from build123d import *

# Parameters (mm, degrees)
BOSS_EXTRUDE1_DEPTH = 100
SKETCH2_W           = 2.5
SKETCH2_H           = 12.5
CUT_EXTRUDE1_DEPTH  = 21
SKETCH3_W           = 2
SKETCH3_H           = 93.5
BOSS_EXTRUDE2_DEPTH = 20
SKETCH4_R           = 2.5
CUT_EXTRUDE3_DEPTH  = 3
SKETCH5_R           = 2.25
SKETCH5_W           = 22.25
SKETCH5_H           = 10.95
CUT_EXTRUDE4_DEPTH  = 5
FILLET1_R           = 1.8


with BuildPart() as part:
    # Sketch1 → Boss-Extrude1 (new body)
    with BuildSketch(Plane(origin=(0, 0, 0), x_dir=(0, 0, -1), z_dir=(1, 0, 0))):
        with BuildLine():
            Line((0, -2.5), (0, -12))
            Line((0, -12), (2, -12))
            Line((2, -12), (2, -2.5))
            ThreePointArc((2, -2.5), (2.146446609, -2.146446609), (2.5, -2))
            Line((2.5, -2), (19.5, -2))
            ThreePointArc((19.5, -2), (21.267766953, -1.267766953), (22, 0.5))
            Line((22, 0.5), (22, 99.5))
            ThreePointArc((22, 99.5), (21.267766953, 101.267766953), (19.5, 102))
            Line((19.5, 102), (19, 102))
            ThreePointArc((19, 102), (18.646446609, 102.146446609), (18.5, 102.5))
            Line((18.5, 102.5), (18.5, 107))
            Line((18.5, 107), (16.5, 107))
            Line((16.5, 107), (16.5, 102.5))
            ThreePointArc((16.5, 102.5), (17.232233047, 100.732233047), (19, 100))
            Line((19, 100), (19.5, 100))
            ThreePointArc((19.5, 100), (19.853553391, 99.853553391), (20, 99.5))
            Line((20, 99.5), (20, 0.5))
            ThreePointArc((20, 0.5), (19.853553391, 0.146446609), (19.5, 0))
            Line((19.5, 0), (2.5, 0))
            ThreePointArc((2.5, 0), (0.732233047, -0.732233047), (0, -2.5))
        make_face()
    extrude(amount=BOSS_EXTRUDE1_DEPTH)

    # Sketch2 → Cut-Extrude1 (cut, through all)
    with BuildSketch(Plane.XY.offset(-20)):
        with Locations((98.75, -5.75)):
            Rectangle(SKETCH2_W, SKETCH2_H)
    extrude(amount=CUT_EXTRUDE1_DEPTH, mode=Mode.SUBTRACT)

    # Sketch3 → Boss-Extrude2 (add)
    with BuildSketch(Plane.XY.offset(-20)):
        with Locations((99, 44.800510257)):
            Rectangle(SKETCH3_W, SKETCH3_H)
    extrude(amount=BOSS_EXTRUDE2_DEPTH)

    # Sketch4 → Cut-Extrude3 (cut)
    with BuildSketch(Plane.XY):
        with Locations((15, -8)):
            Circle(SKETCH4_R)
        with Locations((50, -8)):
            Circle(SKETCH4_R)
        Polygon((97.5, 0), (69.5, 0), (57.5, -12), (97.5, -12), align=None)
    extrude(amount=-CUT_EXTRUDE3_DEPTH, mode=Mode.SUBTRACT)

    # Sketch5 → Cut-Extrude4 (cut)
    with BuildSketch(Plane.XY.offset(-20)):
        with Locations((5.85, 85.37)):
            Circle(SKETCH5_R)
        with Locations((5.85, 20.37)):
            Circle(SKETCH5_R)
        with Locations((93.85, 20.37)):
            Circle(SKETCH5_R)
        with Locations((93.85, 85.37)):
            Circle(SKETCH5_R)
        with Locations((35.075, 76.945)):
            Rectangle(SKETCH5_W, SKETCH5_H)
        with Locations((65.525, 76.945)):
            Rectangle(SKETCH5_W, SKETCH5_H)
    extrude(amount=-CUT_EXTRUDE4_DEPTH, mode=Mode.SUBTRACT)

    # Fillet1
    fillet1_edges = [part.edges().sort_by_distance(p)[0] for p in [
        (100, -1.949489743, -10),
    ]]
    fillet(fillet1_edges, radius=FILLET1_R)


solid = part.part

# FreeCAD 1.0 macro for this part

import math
import FreeCAD as App
import Part
import Sketcher

V = App.Vector
Q = App.Units.Quantity


def edges_at(feature, points):
    """Names of the edges that pass closest to the given points."""
    edges = feature.Shape.Edges
    near = lambda p: min(range(len(edges)), key=lambda i: edges[i].distToShape(Part.Vertex(*p))[0])
    return sorted({f"Edge{near(p) + 1}" for p in points})


def add_polygon(sketch, points):
    """Adds a closed chain of lines whose ends are joined by coincident constraints."""
    first, n = sketch.GeometryCount, len(points)
    for a, b in zip(points, points[1:] + points[:1]):
        sketch.addGeometry(Part.LineSegment(App.Vector(*a, 0), App.Vector(*b, 0)), False)
    for i in range(n):
        sketch.addConstraint(Sketcher.Constraint("Coincident", first + i, 2, first + (i + 1) % n, 1))

doc = App.newDocument("Part")
params = doc.addObject("Spreadsheet::Sheet", "Params")
for row, (alias, value) in enumerate([
    ("sketch1_radius", "0.5 mm"),
    ("sketch1_radius2", "2.5 mm"),
    ("sketch1_width", "99 mm"),
    ("sketch1_height", "17 mm"),
    ("sketch1_width2", "9.5 mm"),
    ("pad1_length", "100 mm"),
    ("sketch2_width", "2.5 mm"),
    ("sketch2_height", "12.5 mm"),
    ("sketch3_width", "2 mm"),
    ("sketch3_height", "93.5 mm"),
    ("pad2_length", "20 mm"),
    ("sketch4_diameter", "5 mm"),
    ("sketch4_width", "28 mm"),
    ("sketch4_width2", "40 mm"),
    ("sketch4_height", "12 mm"),
    ("pocket2_length", "3 mm"),
    ("sketch5_diameter", "4.5 mm"),
    ("sketch5_width", "22.25 mm"),
    ("sketch5_height", "10.95 mm"),
    ("pocket3_length", "5 mm"),
    ("fillet_radius", "1.8 mm"),
], start=1):
    params.set(f"A{row}", alias)
    params.set(f"B{row}", "=" + value)
    params.setAlias(f"B{row}", alias)

body = doc.addObject("PartDesign::Body", "Body")

# Sketch on YZ plane
sketch1 = body.newObject("Sketcher::SketchObject", "Sketch")
sketch1.AttachmentSupport = (doc.getObject("YZ_Plane"), [""])
sketch1.MapMode = "FlatFace"
sketch1.addGeometry([
    Part.LineSegment(V(-2.5, 0, 0), V(-12, 0, 0)),  # 0
    Part.LineSegment(V(-12, 0, 0), V(-12, -2, 0)),  # 1
    Part.LineSegment(V(-12, -2, 0), V(-2.5, -2, 0)),  # 2
    Part.ArcOfCircle(Part.Circle(V(-2.5, -2.5, 0), V(0, 0, 1), 0.5), math.radians(0), math.radians(90)),  # 3
    Part.LineSegment(V(-2, -2.5, 0), V(-2, -19.5, 0)),  # 4
    Part.ArcOfCircle(Part.Circle(V(0.5, -19.5, 0), V(0, 0, 1), 2.5), math.radians(180), math.radians(270)),  # 5
    Part.LineSegment(V(0.5, -22, 0), V(99.5, -22, 0)),  # 6
    Part.ArcOfCircle(Part.Circle(V(99.5, -19.5, 0), V(0, 0, 1), 2.5), math.radians(-90), math.radians(0)),  # 7
    Part.LineSegment(V(102, -19.5, 0), V(102, -19, 0)),  # 8
    Part.ArcOfCircle(Part.Circle(V(102.5, -19, 0), V(0, 0, 1), 0.5), math.radians(90), math.radians(180)),  # 9
    Part.LineSegment(V(102.5, -18.5, 0), V(107, -18.5, 0)),  # 10
    Part.LineSegment(V(107, -18.5, 0), V(107, -16.5, 0)),  # 11
    Part.LineSegment(V(107, -16.5, 0), V(102.5, -16.5, 0)),  # 12
    Part.ArcOfCircle(Part.Circle(V(102.5, -19, 0), V(0, 0, 1), 2.5), math.radians(90), math.radians(180)),  # 13
    Part.LineSegment(V(100, -19, 0), V(100, -19.5, 0)),  # 14
    Part.ArcOfCircle(Part.Circle(V(99.5, -19.5, 0), V(0, 0, 1), 0.5), math.radians(-90), math.radians(0)),  # 15
    Part.LineSegment(V(99.5, -20, 0), V(0.5, -20, 0)),  # 16
    Part.ArcOfCircle(Part.Circle(V(0.5, -19.5, 0), V(0, 0, 1), 0.5), math.radians(180), math.radians(270)),  # 17
    Part.LineSegment(V(0, -19.5, 0), V(0, -2.5, 0)),  # 18
    Part.ArcOfCircle(Part.Circle(V(-2.5, -2.5, 0), V(0, 0, 1), 2.5), math.radians(0), math.radians(90)),  # 19
], False)
sketch1.addConstraint([
    Sketcher.Constraint("Coincident", 0, 2, 1, 1),
    Sketcher.Constraint("Coincident", 1, 2, 2, 1),
    Sketcher.Constraint("Tangent", 2, 2, 3, 2),
    Sketcher.Constraint("Tangent", 3, 1, 4, 1),
    Sketcher.Constraint("Tangent", 4, 2, 5, 1),
    Sketcher.Constraint("Tangent", 5, 2, 6, 1),
    Sketcher.Constraint("Tangent", 6, 2, 7, 1),
    Sketcher.Constraint("Tangent", 7, 2, 8, 1),
    Sketcher.Constraint("Tangent", 8, 2, 9, 2),
    Sketcher.Constraint("Tangent", 9, 1, 10, 1),
    Sketcher.Constraint("Coincident", 10, 2, 11, 1),
    Sketcher.Constraint("Coincident", 11, 2, 12, 1),
    Sketcher.Constraint("Tangent", 12, 2, 13, 1),
    Sketcher.Constraint("Tangent", 13, 2, 14, 1),
    Sketcher.Constraint("Tangent", 14, 2, 15, 2),
    Sketcher.Constraint("Tangent", 15, 1, 16, 1),
    Sketcher.Constraint("Tangent", 16, 2, 17, 2),
    Sketcher.Constraint("Tangent", 17, 1, 18, 1),
    Sketcher.Constraint("Tangent", 18, 2, 19, 1),
    Sketcher.Constraint("Tangent", 19, 2, 0, 1),
    Sketcher.Constraint("Horizontal", 0),
    Sketcher.Constraint("Vertical", 1),
    Sketcher.Constraint("Horizontal", 2),
    Sketcher.Constraint("Vertical", 4),
    Sketcher.Constraint("Horizontal", 6),
    Sketcher.Constraint("Vertical", 8),
    Sketcher.Constraint("Horizontal", 10),
    Sketcher.Constraint("Vertical", 11),
    Sketcher.Constraint("Horizontal", 12),
    Sketcher.Constraint("Vertical", 14),
    Sketcher.Constraint("Horizontal", 16),
    Sketcher.Constraint("Vertical", 18),
    Sketcher.Constraint("Coincident", 13, 3, 9, 3),
    Sketcher.Constraint("Coincident", 15, 3, 7, 3),
    Sketcher.Constraint("Coincident", 17, 3, 5, 3),
    Sketcher.Constraint("Coincident", 19, 3, 3, 3),
    Sketcher.Constraint("Equal", 5, 7),
    Sketcher.Constraint("Equal", 3, 9),
    Sketcher.Constraint("Equal", 7, 13),
    Sketcher.Constraint("PointOnObject", 0, 2, -1),
    Sketcher.Constraint("PointOnObject", 17, 1, -2),
    Sketcher.Constraint("Radius", 3, Q("0.5 mm")),
    Sketcher.Constraint("Radius", 5, Q("2.5 mm")),
    Sketcher.Constraint("DistanceX", 6, 1, 6, 2, Q("99 mm")),
    Sketcher.Constraint("DistanceY", 4, 2, 4, 1, Q("17 mm")),
    Sketcher.Constraint("DistanceX", 0, 2, 0, 1, Q("9.5 mm")),
    Sketcher.Constraint("DistanceX", 10, 1, 10, 2, Q("4.5 mm")),
    Sketcher.Constraint("DistanceY", 8, 1, 8, 2, Q("0.5 mm")),
])
sketch1.setExpression("Constraints[41]", "Params.sketch1_radius")
sketch1.setExpression("Constraints[42]", "Params.sketch1_radius2")
sketch1.setExpression("Constraints[43]", "Params.sketch1_width")
sketch1.setExpression("Constraints[44]", "Params.sketch1_height")
sketch1.setExpression("Constraints[45]", "Params.sketch1_width2")
pad1 = body.newObject("PartDesign::Pad", "Pad")
pad1.Profile = sketch1
pad1.setExpression("Length", "Params.pad1_length")

# Sketch on XY plane
sketch2 = body.newObject("Sketcher::SketchObject", "Sketch001")
sketch2.AttachmentSupport = (doc.getObject("XY_Plane"), [""])
sketch2.MapMode = "FlatFace"
sketch2.AttachmentOffset = App.Placement(V(0, 0, -20), App.Rotation())
add_polygon(sketch2, [(97.5, 0.5), (97.5, -12), (100, -12), (100, 0.5)])  # lines 0-3
sketch2.addConstraint([
    Sketcher.Constraint("Vertical", 0),
    Sketcher.Constraint("Horizontal", 1),
    Sketcher.Constraint("Vertical", 2),
    Sketcher.Constraint("Horizontal", 3),
    Sketcher.Constraint("DistanceX", 1, 1, 1, 2, Q("2.5 mm")),
    Sketcher.Constraint("DistanceY", 0, 2, 0, 1, Q("12.5 mm")),
    Sketcher.Constraint("DistanceY", 0, 2, -1, 1, Q("12 mm")),
    Sketcher.Constraint("DistanceX", -1, 1, 1, 2, Q("100 mm")),
])
sketch2.setExpression("Constraints[8]", "Params.sketch2_width")
sketch2.setExpression("Constraints[9]", "Params.sketch2_height")
pocket1 = body.newObject("PartDesign::Pocket", "Pocket")
pocket1.Profile = sketch2
pocket1.Type = "ThroughAll"
pocket1.Reversed = True

# Sketch on XY plane
sketch3 = body.newObject("Sketcher::SketchObject", "Sketch002")
sketch3.AttachmentSupport = (doc.getObject("XY_Plane"), [""])
sketch3.MapMode = "FlatFace"
sketch3.AttachmentOffset = App.Placement(V(0, 0, -20), App.Rotation())
add_polygon(sketch3, [(98, 91.6), (98, -1.9), (100, -1.9), (100, 91.6)])  # lines 0-3
sketch3.addConstraint([
    Sketcher.Constraint("Vertical", 0),
    Sketcher.Constraint("Horizontal", 1),
    Sketcher.Constraint("Vertical", 2),
    Sketcher.Constraint("Horizontal", 3),
    Sketcher.Constraint("DistanceX", 1, 1, 1, 2, Q("2 mm")),
    Sketcher.Constraint("DistanceY", 0, 2, 0, 1, Q("93.5 mm")),
    Sketcher.Constraint("DistanceX", -1, 1, 0, 2, Q("98 mm")),
    Sketcher.Constraint("DistanceY", 0, 2, -1, 1, Q("1.94949 mm")),
])
sketch3.setExpression("Constraints[8]", "Params.sketch3_width")
sketch3.setExpression("Constraints[9]", "Params.sketch3_height")
pad2 = body.newObject("PartDesign::Pad", "Pad001")
pad2.Profile = sketch3
pad2.setExpression("Length", "Params.pad2_length")

# Sketch on XY plane
sketch4 = body.newObject("Sketcher::SketchObject", "Sketch003")
sketch4.AttachmentSupport = (doc.getObject("XY_Plane"), [""])
sketch4.MapMode = "FlatFace"
sketch4.addGeometry(Part.Circle(V(15, -8, 0), V(0, 0, 1), 2.5), False)  # 0
sketch4.addGeometry(Part.Circle(V(50, -8, 0), V(0, 0, 1), 2.5), False)  # 1
add_polygon(sketch4, [(97.5, 0), (69.5, 0), (57.5, -12), (97.5, -12)])  # lines 2-5
sketch4.addConstraint([
    Sketcher.Constraint("Horizontal", 2),
    Sketcher.Constraint("Horizontal", 4),
    Sketcher.Constraint("Vertical", 5),
    Sketcher.Constraint("Equal", 0, 1),
    Sketcher.Constraint("PointOnObject", 2, 2, -1),
    Sketcher.Constraint("Horizontal", 0, 3, 1, 3),
    Sketcher.Constraint("Diameter", 0, Q("5 mm")),
    Sketcher.Constraint("DistanceX", 2, 2, 2, 1, Q("28 mm")),
    Sketcher.Constraint("DistanceX", 4, 1, 4, 2, Q("40 mm")),
    Sketcher.Constraint("DistanceY", 5, 1, 5, 2, Q("12 mm")),
    Sketcher.Constraint("DistanceX", -1, 1, 0, 3, Q("15 mm")),
    Sketcher.Constraint("DistanceY", 0, 3, -1, 1, Q("8 mm")),
    Sketcher.Constraint("DistanceX", -1, 1, 1, 3, Q("50 mm")),
    Sketcher.Constraint("DistanceX", -1, 1, 2, 2, Q("69.5 mm")),
])
sketch4.setExpression("Constraints[10]", "Params.sketch4_diameter")
sketch4.setExpression("Constraints[11]", "Params.sketch4_width")
sketch4.setExpression("Constraints[12]", "Params.sketch4_width2")
sketch4.setExpression("Constraints[13]", "Params.sketch4_height")
pocket2 = body.newObject("PartDesign::Pocket", "Pocket001")
pocket2.Profile = sketch4
pocket2.setExpression("Length", "Params.pocket2_length")

# Sketch on XY plane
sketch5 = body.newObject("Sketcher::SketchObject", "Sketch004")
sketch5.AttachmentSupport = (doc.getObject("XY_Plane"), [""])
sketch5.MapMode = "FlatFace"
sketch5.AttachmentOffset = App.Placement(V(0, 0, -20), App.Rotation())
sketch5.addGeometry(Part.Circle(V(5.8, 85.4, 0), V(0, 0, 1), 2.2), False)  # 0
sketch5.addGeometry(Part.Circle(V(5.8, 20.4, 0), V(0, 0, 1), 2.2), False)  # 1
sketch5.addGeometry(Part.Circle(V(93.8, 20.4, 0), V(0, 0, 1), 2.2), False)  # 2
sketch5.addGeometry(Part.Circle(V(93.8, 85.4, 0), V(0, 0, 1), 2.2), False)  # 3
add_polygon(sketch5, [(23.9, 82.4), (23.9, 71.5), (46.2, 71.5), (46.2, 82.4)])  # lines 4-7
add_polygon(sketch5, [(54.4, 82.4), (54.4, 71.5), (76.7, 71.5), (76.7, 82.4)])  # lines 8-11
sketch5.addConstraint([
    Sketcher.Constraint("Vertical", 4),
    Sketcher.Constraint("Horizontal", 5),
    Sketcher.Constraint("Vertical", 6),
    Sketcher.Constraint("Horizontal", 7),
    Sketcher.Constraint("Vertical", 8),
    Sketcher.Constraint("Horizontal", 9),
    Sketcher.Constraint("Vertical", 10),
    Sketcher.Constraint("Horizontal", 11),
    Sketcher.Constraint("Equal", 0, 1),
    Sketcher.Constraint("Equal", 1, 2),
    Sketcher.Constraint("Equal", 2, 3),
    Sketcher.Constraint("Horizontal", 1, 3, 2, 3),
    Sketcher.Constraint("Horizontal", 0, 3, 3, 3),
    Sketcher.Constraint("Horizontal", 5, 2, 8, 2),
    Sketcher.Constraint("Horizontal", 7, 2, 10, 2),
    Sketcher.Constraint("Vertical", 0, 3, 1, 3),
    Sketcher.Constraint("Vertical", 2, 3, 3, 3),
    Sketcher.Constraint("Equal", 7, 9),
    Sketcher.Constraint("Diameter", 0, Q("4.5 mm")),
    Sketcher.Constraint("DistanceY", 1, 3, 0, 3, Q("65 mm")),
    Sketcher.Constraint("DistanceX", 1, 3, 2, 3, Q("88 mm")),
    Sketcher.Constraint("DistanceX", 5, 1, 5, 2, Q("22.25 mm")),
    Sketcher.Constraint("DistanceY", 4, 2, 4, 1, Q("10.95 mm")),
    Sketcher.Constraint("DistanceX", -1, 1, 5, 2, Q("46.2 mm")),
    Sketcher.Constraint("DistanceX", -1, 1, 8, 2, Q("54.4 mm")),
    Sketcher.Constraint("DistanceX", 0, 3, 4, 2, Q("18.1 mm")),
    Sketcher.Constraint("DistanceY", 4, 2, 0, 3, Q("13.9 mm")),
    Sketcher.Constraint("DistanceY", -1, 1, 0, 3, Q("85.37 mm")),
])
sketch5.setExpression("Constraints[26]", "Params.sketch5_diameter")
sketch5.setExpression("Constraints[29]", "Params.sketch5_width")
sketch5.setExpression("Constraints[30]", "Params.sketch5_height")
pocket3 = body.newObject("PartDesign::Pocket", "Pocket002")
pocket3.Profile = sketch5
pocket3.setExpression("Length", "Params.pocket3_length")
doc.recompute()

fillet = body.newObject("PartDesign::Fillet", "Fillet")
fillet.Base = (pocket3, edges_at(pocket3, [(100, -1.949, -10)]))
fillet.setExpression("Radius", "Params.fillet_radius")

doc.recompute()
